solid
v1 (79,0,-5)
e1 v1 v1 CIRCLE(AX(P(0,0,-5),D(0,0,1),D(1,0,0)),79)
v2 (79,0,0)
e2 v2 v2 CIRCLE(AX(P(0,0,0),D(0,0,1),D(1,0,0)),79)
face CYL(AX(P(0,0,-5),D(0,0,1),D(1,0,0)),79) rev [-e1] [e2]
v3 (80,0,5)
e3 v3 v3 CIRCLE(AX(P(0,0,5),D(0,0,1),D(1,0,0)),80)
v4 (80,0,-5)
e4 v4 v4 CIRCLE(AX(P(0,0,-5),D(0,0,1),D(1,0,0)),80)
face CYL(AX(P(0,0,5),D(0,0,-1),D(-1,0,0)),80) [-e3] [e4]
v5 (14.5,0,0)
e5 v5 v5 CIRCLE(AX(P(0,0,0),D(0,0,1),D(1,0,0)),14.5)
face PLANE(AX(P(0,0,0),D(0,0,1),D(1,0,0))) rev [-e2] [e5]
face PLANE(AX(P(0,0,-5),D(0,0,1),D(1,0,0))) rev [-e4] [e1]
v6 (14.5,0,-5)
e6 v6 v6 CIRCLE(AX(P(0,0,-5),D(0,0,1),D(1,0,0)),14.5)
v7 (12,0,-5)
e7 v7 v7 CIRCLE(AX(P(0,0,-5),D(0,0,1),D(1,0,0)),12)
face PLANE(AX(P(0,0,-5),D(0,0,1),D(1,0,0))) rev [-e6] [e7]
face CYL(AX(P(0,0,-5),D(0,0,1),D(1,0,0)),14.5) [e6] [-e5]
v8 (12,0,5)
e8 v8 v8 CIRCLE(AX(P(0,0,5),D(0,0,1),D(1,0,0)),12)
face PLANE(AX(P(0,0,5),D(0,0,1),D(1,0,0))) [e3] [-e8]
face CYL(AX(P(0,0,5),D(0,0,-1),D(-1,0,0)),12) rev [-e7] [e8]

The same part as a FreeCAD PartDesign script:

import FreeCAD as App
import Part
import Sketcher
from FreeCAD import Vector

doc = App.newDocument("Part")
body = doc.addObject("PartDesign::Body", "Body")

sketch1 = doc.addObject("Sketcher::SketchObject", "Sketch")
body.addObject(sketch1)
sketch1.AttachmentSupport = (doc.XY_Plane, [""])
sketch1.MapMode = "FlatFace"
sketch1.addGeometry([
    Part.Circle(Vector(0, 0, 0), Vector(0, 0, 1), 80),
    Part.Circle(Vector(0, 0, 0), Vector(0, 0, 1), 12),
], False)
sketch1.addConstraint([
    Sketcher.Constraint("Coincident", 0, 3, -1, 1),
    Sketcher.Constraint("Coincident", 1, 3, -1, 1),
    Sketcher.Constraint("Diameter", 0, 160.0),
    Sketcher.Constraint("Diameter", 1, 24.0),
])
pad1 = doc.addObject("PartDesign::Pad", "Pad")
body.addObject(pad1)
pad1.Profile = sketch1
pad1.Length = 5

sketch2 = doc.addObject("Sketcher::SketchObject", "Sketch001")
body.addObject(sketch2)
sketch2.AttachmentSupport = (doc.XY_Plane, [""])
sketch2.MapMode = "FlatFace"
sketch2.AttachmentOffset = App.Placement(Vector(0, 0, -5), App.Rotation())
sketch2.addGeometry([
    Part.Circle(Vector(0, 0, 0), Vector(0, 0, 1), 14),
    Part.Circle(Vector(0, 0, 0), Vector(0, 0, 1), 12),
], False)
sketch2.addConstraint([
    Sketcher.Constraint("Coincident", 0, 3, -1, 1),
    Sketcher.Constraint("Coincident", 1, 3, -1, 1),
    Sketcher.Constraint("Diameter", 0, 29.0),
    Sketcher.Constraint("Diameter", 1, 24.0),
])
pad2 = doc.addObject("PartDesign::Pad", "Pad001")
body.addObject(pad2)
pad2.Profile = sketch2
pad2.Length = 10

sketch3 = doc.addObject("Sketcher::SketchObject", "Sketch002")
body.addObject(sketch3)
sketch3.AttachmentSupport = (doc.XY_Plane, [""])
sketch3.MapMode = "FlatFace"
sketch3.AttachmentOffset = App.Placement(Vector(0, 0, -5), App.Rotation())
sketch3.addGeometry([
    Part.Circle(Vector(0, 0, 0), Vector(0, 0, 1), 80),
    Part.Circle(Vector(0, 0, 0), Vector(0, 0, 1), 79),
], False)
sketch3.addConstraint([
    Sketcher.Constraint("Coincident", 0, 3, -1, 1),
    Sketcher.Constraint("Coincident", 1, 3, -1, 1),
    Sketcher.Constraint("Diameter", 0, 160.0),
    Sketcher.Constraint("Diameter", 1, 158.0),
])
pad3 = doc.addObject("PartDesign::Pad", "Pad002")
body.addObject(pad3)
pad3.Profile = sketch3
pad3.Length = 10

doc.recompute()
